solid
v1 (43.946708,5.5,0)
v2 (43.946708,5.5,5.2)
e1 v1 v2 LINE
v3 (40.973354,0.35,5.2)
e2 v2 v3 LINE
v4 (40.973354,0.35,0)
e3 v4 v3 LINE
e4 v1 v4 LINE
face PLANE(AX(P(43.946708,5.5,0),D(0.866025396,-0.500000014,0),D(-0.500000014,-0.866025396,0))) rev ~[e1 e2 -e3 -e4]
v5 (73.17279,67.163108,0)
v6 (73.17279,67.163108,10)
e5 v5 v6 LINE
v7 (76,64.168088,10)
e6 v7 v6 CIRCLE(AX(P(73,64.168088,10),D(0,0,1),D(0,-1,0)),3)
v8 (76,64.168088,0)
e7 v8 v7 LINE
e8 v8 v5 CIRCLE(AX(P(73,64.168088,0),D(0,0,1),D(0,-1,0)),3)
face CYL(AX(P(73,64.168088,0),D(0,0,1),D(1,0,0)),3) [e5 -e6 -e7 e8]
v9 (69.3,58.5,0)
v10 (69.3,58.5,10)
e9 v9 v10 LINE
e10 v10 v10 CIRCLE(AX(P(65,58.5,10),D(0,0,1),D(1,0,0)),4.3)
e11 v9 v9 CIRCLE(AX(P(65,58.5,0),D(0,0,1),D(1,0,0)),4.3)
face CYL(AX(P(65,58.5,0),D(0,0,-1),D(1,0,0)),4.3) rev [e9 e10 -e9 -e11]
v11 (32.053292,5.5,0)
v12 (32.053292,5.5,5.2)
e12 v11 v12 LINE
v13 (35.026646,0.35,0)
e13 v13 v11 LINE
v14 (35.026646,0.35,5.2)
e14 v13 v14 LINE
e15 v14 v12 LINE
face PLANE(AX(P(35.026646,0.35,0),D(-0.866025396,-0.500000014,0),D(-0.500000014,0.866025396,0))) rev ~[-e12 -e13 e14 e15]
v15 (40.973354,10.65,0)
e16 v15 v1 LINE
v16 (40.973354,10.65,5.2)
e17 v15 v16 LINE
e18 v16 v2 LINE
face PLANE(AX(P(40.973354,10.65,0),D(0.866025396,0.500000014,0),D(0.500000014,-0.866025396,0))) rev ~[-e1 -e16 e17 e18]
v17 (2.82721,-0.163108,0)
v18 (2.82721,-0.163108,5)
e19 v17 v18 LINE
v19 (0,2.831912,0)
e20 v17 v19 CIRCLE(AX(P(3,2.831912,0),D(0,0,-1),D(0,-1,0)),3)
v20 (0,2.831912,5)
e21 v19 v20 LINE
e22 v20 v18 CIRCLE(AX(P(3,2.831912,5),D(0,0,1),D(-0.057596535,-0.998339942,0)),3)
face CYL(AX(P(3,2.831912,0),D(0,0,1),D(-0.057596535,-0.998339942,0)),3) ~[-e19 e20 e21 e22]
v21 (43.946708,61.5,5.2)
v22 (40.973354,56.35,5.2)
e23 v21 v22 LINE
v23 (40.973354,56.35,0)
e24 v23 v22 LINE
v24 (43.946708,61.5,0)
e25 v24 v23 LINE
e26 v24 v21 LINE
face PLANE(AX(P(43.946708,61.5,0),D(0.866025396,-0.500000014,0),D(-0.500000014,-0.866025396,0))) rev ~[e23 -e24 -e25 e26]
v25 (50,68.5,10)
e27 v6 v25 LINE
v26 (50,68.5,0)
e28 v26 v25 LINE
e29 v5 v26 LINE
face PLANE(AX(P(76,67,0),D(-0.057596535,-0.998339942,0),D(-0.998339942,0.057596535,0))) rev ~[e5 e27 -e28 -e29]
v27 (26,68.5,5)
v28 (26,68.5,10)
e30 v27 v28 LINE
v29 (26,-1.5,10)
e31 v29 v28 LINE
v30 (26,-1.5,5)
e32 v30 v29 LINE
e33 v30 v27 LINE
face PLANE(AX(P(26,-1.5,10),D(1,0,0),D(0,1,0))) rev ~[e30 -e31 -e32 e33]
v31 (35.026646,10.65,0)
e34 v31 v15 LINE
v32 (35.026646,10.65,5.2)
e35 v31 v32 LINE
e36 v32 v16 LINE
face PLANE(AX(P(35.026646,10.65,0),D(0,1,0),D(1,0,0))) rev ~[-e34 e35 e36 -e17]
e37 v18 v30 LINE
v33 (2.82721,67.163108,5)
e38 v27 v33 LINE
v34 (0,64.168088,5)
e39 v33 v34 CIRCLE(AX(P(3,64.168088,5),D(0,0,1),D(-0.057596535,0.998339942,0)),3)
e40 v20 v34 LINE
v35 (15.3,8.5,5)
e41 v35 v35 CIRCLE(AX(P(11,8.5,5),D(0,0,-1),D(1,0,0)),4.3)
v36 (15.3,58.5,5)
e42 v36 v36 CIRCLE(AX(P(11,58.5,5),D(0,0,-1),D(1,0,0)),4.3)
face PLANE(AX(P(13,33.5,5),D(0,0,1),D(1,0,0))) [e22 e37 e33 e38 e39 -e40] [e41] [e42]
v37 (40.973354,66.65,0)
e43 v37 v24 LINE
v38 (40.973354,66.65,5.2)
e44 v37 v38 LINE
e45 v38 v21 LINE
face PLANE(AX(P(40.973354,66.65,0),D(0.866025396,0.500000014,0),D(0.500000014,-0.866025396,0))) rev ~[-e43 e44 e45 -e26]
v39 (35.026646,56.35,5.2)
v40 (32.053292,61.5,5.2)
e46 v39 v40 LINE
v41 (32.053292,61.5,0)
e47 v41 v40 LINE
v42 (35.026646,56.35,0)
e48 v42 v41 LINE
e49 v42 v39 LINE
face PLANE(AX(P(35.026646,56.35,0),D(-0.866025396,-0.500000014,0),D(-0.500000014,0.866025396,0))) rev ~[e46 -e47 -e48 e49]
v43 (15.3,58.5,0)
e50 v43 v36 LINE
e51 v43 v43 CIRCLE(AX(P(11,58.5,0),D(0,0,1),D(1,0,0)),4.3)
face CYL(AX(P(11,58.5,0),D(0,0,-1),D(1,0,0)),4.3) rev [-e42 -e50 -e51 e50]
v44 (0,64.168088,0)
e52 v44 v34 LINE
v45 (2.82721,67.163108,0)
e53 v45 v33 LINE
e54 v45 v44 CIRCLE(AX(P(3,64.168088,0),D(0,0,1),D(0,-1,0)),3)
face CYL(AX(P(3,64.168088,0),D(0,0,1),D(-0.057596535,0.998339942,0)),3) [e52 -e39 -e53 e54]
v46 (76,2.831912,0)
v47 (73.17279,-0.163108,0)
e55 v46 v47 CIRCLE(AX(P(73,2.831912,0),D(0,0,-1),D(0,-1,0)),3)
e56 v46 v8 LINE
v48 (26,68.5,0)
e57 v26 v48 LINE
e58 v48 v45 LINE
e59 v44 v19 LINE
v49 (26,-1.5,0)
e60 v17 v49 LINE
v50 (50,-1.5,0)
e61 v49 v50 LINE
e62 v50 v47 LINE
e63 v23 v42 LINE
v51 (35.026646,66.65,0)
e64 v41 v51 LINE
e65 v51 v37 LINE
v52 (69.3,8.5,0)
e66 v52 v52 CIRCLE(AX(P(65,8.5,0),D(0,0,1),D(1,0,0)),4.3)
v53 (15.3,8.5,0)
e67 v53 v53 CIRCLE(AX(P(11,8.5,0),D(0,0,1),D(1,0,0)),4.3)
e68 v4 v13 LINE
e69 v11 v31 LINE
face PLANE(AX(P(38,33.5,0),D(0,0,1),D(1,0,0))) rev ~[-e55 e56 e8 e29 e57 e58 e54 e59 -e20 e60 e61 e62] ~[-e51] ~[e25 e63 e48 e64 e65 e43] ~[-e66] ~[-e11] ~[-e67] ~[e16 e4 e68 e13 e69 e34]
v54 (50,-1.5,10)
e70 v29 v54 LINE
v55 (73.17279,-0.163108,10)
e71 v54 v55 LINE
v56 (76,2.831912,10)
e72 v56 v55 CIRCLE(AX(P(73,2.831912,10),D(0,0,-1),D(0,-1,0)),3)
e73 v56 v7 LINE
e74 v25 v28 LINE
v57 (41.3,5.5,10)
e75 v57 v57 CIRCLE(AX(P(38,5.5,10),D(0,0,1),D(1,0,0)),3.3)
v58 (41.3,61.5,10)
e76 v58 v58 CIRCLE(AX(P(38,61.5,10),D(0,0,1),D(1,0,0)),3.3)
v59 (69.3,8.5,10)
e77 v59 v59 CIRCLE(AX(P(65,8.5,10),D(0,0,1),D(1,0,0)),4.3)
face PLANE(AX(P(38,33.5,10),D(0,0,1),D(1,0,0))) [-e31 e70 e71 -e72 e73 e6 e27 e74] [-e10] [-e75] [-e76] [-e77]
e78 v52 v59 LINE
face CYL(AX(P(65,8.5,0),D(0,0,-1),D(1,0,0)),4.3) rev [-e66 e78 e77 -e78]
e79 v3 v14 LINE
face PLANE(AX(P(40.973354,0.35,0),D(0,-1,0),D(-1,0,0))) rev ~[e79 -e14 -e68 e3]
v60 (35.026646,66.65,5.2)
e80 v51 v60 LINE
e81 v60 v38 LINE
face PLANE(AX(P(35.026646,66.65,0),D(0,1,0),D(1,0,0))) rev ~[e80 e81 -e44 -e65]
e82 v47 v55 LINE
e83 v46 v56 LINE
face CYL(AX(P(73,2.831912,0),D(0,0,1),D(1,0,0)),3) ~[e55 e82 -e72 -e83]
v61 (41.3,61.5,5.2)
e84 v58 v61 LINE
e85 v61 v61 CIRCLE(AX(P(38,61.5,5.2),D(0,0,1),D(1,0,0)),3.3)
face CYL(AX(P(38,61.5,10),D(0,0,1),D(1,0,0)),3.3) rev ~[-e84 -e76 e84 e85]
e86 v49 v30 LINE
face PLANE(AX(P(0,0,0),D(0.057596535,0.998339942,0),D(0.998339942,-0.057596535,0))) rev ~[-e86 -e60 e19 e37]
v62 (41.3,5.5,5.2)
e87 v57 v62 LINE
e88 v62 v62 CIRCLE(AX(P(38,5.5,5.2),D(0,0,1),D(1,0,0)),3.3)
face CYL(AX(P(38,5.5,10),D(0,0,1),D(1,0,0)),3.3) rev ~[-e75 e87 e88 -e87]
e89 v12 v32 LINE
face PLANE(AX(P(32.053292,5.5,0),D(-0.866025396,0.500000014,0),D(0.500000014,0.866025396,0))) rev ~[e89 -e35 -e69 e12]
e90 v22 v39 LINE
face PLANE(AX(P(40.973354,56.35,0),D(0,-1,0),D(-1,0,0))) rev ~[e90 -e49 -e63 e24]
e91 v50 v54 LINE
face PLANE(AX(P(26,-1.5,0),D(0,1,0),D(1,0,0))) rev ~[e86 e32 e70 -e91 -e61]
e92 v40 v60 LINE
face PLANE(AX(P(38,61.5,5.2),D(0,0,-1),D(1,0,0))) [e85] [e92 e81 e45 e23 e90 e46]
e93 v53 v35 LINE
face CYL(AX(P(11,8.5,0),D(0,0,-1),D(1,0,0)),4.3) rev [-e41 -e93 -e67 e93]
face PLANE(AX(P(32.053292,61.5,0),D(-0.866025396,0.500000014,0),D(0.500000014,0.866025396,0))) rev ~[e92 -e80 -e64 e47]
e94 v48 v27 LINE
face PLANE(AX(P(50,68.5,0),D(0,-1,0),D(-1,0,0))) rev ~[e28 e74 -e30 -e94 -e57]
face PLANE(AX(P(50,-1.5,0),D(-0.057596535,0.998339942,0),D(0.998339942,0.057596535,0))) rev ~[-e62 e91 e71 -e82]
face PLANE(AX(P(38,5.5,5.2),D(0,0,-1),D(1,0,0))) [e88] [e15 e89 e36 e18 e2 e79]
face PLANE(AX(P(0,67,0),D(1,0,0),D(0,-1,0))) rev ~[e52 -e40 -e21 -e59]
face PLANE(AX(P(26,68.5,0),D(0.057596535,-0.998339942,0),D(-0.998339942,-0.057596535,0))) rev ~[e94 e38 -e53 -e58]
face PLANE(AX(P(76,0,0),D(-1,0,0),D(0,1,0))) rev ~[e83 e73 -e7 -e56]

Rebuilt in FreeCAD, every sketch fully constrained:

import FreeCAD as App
import Part
import Sketcher

V = App.Vector
Q = App.Units.Quantity


def edges_at(feature, points):
    """Names of the edges that pass closest to the given points."""
    edges = feature.Shape.Edges
    near = lambda p: min(range(len(edges)), key=lambda i: edges[i].distToShape(Part.Vertex(*p))[0])
    return sorted({f"Edge{near(p) + 1}" for p in points})


def add_polygon(sketch, points):
    """Adds a closed chain of lines whose ends are joined by coincident constraints."""
    first, n = sketch.GeometryCount, len(points)
    for a, b in zip(points, points[1:] + points[:1]):
        sketch.addGeometry(Part.LineSegment(App.Vector(*a, 0), App.Vector(*b, 0)), False)
    for i in range(n):
        sketch.addConstraint(Sketcher.Constraint("Coincident", first + i, 2, first + (i + 1) % n, 1))

doc = App.newDocument("Part")
body = doc.addObject("PartDesign::Body", "Body")

# Sketch on XY plane
sketch1 = body.newObject("Sketcher::SketchObject", "Sketch")
sketch1.AttachmentSupport = (doc.getObject("XY_Plane"), [""])
sketch1.MapMode = "FlatFace"
add_polygon(sketch1, [(76, 0), (76, 67), (50, 68.5), (26, 68.5), (0, 67), (0, 0), (26, -1.5), (50, -1.5)])  # lines 0-7
sketch1.addGeometry(Part.Circle(V(11, 8.5, 0), V(0, 0, 1), 4.3), False)  # 8
sketch1.addGeometry(Part.Circle(V(65, 8.5, 0), V(0, 0, 1), 4.3), False)  # 9
sketch1.addGeometry(Part.Circle(V(11, 58.5, 0), V(0, 0, 1), 4.3), False)  # 10
sketch1.addGeometry(Part.Circle(V(65, 58.5, 0), V(0, 0, 1), 4.3), False)  # 11
sketch1.addConstraint(Sketcher.Constraint("Vertical", 0))
sketch1.addConstraint(Sketcher.Constraint("Horizontal", 2))
sketch1.addConstraint(Sketcher.Constraint("Vertical", 4))
sketch1.addConstraint(Sketcher.Constraint("Horizontal", 6))
sketch1.addConstraint(Sketcher.Constraint("Coincident", 4, 2, -1, 1))
sketch1.addConstraint(Sketcher.Constraint("Equal", 8, 9))
sketch1.addConstraint(Sketcher.Constraint("Equal", 9, 10))
sketch1.addConstraint(Sketcher.Constraint("Equal", 10, 11))
sketch1.addConstraint(Sketcher.Constraint("PointOnObject", 7, 2, -1))
sketch1.addConstraint(Sketcher.Constraint("Parallel", 1, 5))
sketch1.addConstraint(Sketcher.Constraint("Parallel", 3, 7))
sketch1.addConstraint(Sketcher.Constraint("Horizontal", 8, 3, 9, 3))
sketch1.addConstraint(Sketcher.Constraint("Horizontal", 10, 3, 11, 3))
sketch1.addConstraint(Sketcher.Constraint("Horizontal", 0, 2, 3, 2))
sketch1.addConstraint(Sketcher.Constraint("Vertical", 8, 3, 10, 3))
sketch1.addConstraint(Sketcher.Constraint("Vertical", 9, 3, 11, 3))
sketch1.addConstraint(Sketcher.Constraint("Vertical", 2, 2, 5, 2))
sketch1.addConstraint(Sketcher.Constraint("Vertical", 1, 2, 6, 2))
sketch1.addConstraint(Sketcher.Constraint("Diameter", 8, Q("8.6 mm")))
sketch1.addConstraint(Sketcher.Constraint("DistanceX", 2, 2, 2, 1, Q("24 mm")))
sketch1.addConstraint(Sketcher.Constraint("DistanceY", 0, 1, 0, 2, Q("67 mm")))
sketch1.addConstraint(Sketcher.Constraint("DistanceX", -1, 1, 8, 3, Q("11 mm")))
sketch1.addConstraint(Sketcher.Constraint("DistanceX", -1, 1, 9, 3, Q("65 mm")))
sketch1.addConstraint(Sketcher.Constraint("DistanceX", -1, 1, 0, 2, Q("76 mm")))
sketch1.addConstraint(Sketcher.Constraint("DistanceY", 8, 3, 10, 3, Q("50 mm")))
sketch1.addConstraint(Sketcher.Constraint("DistanceY", 11, 3, 1, 2, Q("10 mm")))
sketch1.addConstraint(Sketcher.Constraint("DistanceY", 5, 2, 8, 3, Q("10 mm")))
pad1 = body.newObject("PartDesign::Pad", "Pad")
pad1.Profile = sketch1
pad1.Length = 10

# Sketch on XY plane
sketch2 = body.newObject("Sketcher::SketchObject", "Sketch001")
sketch2.AttachmentSupport = (doc.getObject("XY_Plane"), [""])
sketch2.MapMode = "FlatFace"
sketch2.AttachmentOffset = App.Placement(V(0, 0, 10), App.Rotation())
sketch2.addGeometry(Part.Circle(V(38, 61.5, 0), V(0, 0, 1), 3.3), False)
sketch2.addGeometry(Part.Circle(V(38, 5.5, 0), V(0, 0, 1), 3.3), False)
sketch2.addConstraint(Sketcher.Constraint("Equal", 0, 1))
sketch2.addConstraint(Sketcher.Constraint("Vertical", 0, 3, 1, 3))
sketch2.addConstraint(Sketcher.Constraint("Diameter", 0, Q("6.6 mm")))
sketch2.addConstraint(Sketcher.Constraint("DistanceX", -1, 1, 0, 3, Q("38 mm")))
sketch2.addConstraint(Sketcher.Constraint("DistanceY", 1, 3, 0, 3, Q("56 mm")))
sketch2.addConstraint(Sketcher.Constraint("DistanceY", -1, 1, 0, 3, Q("61.5 mm")))
pocket1 = body.newObject("PartDesign::Pocket", "Pocket")
pocket1.Profile = sketch2
pocket1.Type = "ThroughAll"

# Sketch on XY plane
sketch3 = body.newObject("Sketcher::SketchObject", "Sketch002")
sketch3.AttachmentSupport = (doc.getObject("XY_Plane"), [""])
sketch3.MapMode = "FlatFace"
add_polygon(sketch3, [(41, 11), (44, 6), (41, 0), (35, 0), (32, 6), (35, 11)])  # lines 0-5
add_polygon(sketch3, [(44, 62), (41, 56), (35, 56), (32, 62), (35, 67), (41, 67)])  # lines 6-11
sketch3.addConstraint(Sketcher.Constraint("Horizontal", 2))
sketch3.addConstraint(Sketcher.Constraint("Horizontal", 5))
sketch3.addConstraint(Sketcher.Constraint("Horizontal", 7))
sketch3.addConstraint(Sketcher.Constraint("Horizontal", 10))
sketch3.addConstraint(Sketcher.Constraint("Parallel", 0, 3))
sketch3.addConstraint(Sketcher.Constraint("Parallel", 1, 4))
sketch3.addConstraint(Sketcher.Constraint("Parallel", 4, 6))
sketch3.addConstraint(Sketcher.Constraint("Parallel", 3, 8))
sketch3.addConstraint(Sketcher.Constraint("Parallel", 6, 9))
sketch3.addConstraint(Sketcher.Constraint("Parallel", 8, 11))
sketch3.addConstraint(Sketcher.Constraint("Horizontal", 0, 2, 3, 2))
sketch3.addConstraint(Sketcher.Constraint("Horizontal", 8, 2, 11, 2))
sketch3.addConstraint(Sketcher.Constraint("Vertical", 2, 2, 4, 2))
sketch3.addConstraint(Sketcher.Constraint("Vertical", 1, 2, 5, 2))
sketch3.addConstraint(Sketcher.Constraint("Vertical", 5, 2, 6, 2))
sketch3.addConstraint(Sketcher.Constraint("Vertical", 4, 2, 7, 2))
sketch3.addConstraint(Sketcher.Constraint("Vertical", 3, 2, 8, 2))
sketch3.addConstraint(Sketcher.Constraint("Vertical", 7, 2, 9, 2))
sketch3.addConstraint(Sketcher.Constraint("Angle", 0, Q("-59.999999 deg")))
sketch3.addConstraint(Sketcher.Constraint("DistanceY", 1, 2, 6, 2, Q("56 mm")))
sketch3.addConstraint(Sketcher.Constraint("DistanceY", -1, 1, 0, 2, Q("5.5 mm")))
sketch3.addConstraint(Sketcher.Constraint("DistanceY", 2, 2, 4, 2, Q("10.3 mm")))
sketch3.addConstraint(Sketcher.Constraint("DistanceX", 2, 2, 2, 1, Q("5.946708 mm")))
sketch3.addConstraint(Sketcher.Constraint("DistanceX", -1, 1, 0, 2, Q("43.946708 mm")))
pocket2 = body.newObject("PartDesign::Pocket", "Pocket001")
pocket2.Profile = sketch3
pocket2.Length = 5.2
pocket2.Reversed = True
doc.recompute()

fillet = body.newObject("PartDesign::Fillet", "Fillet")
fillet.Base = (pocket2, edges_at(pocket2, [
    (0, 67, 5),
    (0, 0, 5),
    (76, 0, 5),
    (76, 67, 5),
]))
fillet.Radius = 3

# Sketch on XY plane
sketch4 = body.newObject("Sketcher::SketchObject", "Sketch003")
sketch4.AttachmentSupport = (doc.getObject("XY_Plane"), [""])
sketch4.MapMode = "FlatFace"
sketch4.AttachmentOffset = App.Placement(V(0, 0, 10), App.Rotation())
add_polygon(sketch4, [(0, 68), (0, -2), (26, -2), (26, 68)])  # lines 0-3
sketch4.addConstraint(Sketcher.Constraint("Vertical", 0))
sketch4.addConstraint(Sketcher.Constraint("Horizontal", 1))
sketch4.addConstraint(Sketcher.Constraint("Vertical", 2))
sketch4.addConstraint(Sketcher.Constraint("Horizontal", 3))
sketch4.addConstraint(Sketcher.Constraint("PointOnObject", 0, 2, -2))
sketch4.addConstraint(Sketcher.Constraint("DistanceX", 1, 1, 1, 2, Q("26 mm")))
sketch4.addConstraint(Sketcher.Constraint("DistanceY", 0, 2, 0, 1, Q("70 mm")))
sketch4.addConstraint(Sketcher.Constraint("DistanceY", 0, 2, -1, 1, Q("1.5 mm")))
pocket3 = body.newObject("PartDesign::Pocket", "Pocket002")
pocket3.Profile = sketch4
pocket3.Length = 5

doc.recompute()
